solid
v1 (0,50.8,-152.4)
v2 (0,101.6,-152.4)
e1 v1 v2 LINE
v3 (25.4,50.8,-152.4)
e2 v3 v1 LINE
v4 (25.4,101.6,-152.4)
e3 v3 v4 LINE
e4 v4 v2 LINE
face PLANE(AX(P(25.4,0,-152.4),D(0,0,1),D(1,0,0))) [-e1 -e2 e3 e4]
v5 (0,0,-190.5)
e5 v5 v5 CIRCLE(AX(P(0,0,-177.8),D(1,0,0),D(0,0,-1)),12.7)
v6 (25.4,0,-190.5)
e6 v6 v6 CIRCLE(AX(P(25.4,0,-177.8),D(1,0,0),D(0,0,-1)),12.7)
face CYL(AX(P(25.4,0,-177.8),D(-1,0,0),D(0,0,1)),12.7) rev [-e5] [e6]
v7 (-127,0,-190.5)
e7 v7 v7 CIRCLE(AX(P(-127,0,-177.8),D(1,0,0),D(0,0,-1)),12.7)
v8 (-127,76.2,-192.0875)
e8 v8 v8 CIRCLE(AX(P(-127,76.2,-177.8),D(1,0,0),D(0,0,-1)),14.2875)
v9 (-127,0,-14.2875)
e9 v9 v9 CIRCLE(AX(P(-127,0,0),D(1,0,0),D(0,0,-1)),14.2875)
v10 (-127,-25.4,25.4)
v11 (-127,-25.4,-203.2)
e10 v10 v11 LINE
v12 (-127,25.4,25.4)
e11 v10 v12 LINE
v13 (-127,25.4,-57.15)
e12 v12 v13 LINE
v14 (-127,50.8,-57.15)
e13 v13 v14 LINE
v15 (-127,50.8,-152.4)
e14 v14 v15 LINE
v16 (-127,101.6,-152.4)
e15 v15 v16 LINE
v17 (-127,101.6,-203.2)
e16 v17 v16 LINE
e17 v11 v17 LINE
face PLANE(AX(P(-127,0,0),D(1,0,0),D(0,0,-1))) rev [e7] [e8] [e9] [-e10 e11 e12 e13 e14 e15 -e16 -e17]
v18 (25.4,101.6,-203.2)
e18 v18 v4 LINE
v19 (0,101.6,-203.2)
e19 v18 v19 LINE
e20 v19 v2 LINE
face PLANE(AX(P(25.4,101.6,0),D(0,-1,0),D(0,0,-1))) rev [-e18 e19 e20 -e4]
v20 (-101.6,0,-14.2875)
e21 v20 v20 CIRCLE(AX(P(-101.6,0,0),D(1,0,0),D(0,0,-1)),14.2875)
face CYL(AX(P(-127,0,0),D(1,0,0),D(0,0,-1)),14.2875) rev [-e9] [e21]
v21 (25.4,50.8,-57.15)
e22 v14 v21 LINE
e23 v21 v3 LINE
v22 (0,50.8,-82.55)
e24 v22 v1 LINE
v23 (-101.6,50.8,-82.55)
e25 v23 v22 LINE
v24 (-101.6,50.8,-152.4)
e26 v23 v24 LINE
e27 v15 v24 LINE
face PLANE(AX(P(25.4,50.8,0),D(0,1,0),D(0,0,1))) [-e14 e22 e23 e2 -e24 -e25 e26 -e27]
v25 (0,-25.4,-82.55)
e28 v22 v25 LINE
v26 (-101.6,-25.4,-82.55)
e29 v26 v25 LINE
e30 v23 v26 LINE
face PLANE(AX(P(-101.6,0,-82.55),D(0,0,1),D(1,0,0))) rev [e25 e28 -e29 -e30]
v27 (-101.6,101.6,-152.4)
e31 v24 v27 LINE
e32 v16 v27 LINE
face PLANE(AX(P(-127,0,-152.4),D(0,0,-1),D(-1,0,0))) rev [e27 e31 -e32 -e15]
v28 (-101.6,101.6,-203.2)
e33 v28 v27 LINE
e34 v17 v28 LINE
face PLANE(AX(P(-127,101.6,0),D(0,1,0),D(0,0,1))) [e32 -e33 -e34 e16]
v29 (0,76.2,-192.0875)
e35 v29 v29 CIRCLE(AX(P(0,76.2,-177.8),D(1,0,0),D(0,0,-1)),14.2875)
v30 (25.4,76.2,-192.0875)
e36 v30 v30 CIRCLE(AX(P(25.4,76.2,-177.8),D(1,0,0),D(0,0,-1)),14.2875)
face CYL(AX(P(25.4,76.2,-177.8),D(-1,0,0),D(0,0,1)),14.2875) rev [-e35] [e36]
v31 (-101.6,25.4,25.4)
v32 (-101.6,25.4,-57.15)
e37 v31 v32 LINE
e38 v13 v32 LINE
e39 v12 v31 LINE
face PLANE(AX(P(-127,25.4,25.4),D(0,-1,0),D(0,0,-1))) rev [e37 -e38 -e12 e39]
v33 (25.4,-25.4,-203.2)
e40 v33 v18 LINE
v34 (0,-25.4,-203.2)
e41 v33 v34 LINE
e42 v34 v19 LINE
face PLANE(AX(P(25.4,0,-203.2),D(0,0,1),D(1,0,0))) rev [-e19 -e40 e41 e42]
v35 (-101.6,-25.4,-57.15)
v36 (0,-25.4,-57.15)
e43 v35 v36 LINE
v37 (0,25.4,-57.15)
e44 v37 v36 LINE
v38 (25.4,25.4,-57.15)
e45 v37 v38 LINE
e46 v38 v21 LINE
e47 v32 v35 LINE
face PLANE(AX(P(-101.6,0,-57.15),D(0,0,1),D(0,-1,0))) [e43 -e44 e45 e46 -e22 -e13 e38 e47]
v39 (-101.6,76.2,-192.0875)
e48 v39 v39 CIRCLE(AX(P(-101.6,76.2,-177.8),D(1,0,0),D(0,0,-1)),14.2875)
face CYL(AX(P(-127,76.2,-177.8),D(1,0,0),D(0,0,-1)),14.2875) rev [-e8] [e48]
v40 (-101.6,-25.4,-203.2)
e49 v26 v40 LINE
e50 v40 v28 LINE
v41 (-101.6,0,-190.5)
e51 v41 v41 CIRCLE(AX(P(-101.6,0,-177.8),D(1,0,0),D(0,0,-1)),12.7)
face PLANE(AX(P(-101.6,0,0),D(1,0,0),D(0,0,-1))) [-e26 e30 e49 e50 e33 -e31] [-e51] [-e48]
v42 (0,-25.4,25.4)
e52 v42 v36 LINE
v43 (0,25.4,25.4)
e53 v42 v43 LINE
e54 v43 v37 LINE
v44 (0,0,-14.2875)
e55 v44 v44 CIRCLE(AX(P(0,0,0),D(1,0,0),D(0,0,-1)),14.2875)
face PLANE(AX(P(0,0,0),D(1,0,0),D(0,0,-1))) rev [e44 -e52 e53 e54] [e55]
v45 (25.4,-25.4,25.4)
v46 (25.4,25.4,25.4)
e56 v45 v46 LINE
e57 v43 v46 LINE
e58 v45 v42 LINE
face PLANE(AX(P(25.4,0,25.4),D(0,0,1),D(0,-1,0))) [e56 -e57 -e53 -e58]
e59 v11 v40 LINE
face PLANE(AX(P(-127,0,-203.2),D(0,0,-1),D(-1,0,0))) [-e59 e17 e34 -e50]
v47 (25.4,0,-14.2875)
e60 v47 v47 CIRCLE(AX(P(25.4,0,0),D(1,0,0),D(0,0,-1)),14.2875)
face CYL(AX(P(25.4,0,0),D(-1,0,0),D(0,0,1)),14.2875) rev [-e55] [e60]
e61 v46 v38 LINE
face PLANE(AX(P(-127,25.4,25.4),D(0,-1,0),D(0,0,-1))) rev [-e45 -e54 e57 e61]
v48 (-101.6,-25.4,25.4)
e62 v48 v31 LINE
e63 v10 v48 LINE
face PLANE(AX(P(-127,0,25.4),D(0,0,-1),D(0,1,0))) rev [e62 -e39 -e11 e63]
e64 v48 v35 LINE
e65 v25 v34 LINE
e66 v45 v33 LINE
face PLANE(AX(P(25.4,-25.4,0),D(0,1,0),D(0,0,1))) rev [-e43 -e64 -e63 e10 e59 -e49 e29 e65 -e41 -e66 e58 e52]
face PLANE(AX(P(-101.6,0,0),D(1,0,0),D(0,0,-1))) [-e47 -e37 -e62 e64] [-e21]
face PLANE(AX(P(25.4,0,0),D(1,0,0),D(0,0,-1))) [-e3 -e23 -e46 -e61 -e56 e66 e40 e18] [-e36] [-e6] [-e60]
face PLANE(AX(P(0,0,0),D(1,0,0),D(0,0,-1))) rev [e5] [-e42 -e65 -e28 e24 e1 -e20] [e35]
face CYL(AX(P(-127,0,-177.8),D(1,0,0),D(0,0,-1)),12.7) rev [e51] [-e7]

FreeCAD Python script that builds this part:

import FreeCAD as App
import Part
import Sketcher
Q = App.Units.Quantity

doc = App.newDocument("Part")
params = doc.addObject("Spreadsheet::Sheet", "Params")
for row, (alias, value) in enumerate([
    ("sketch1_diameter", "1 in"),
    ("sketch1_width", "3 in"),
    ("sketch1_width2", "5 in"),
    ("sketch1_height", "9 in"),
    ("sketch1_diameter2", "1.125 in"),
    ("pad1_length", "1 in"),
    ("sketch2_width", "3 in"),
    ("sketch2_height", "1 in"),
    ("pad2_length", "4 in"),
    ("sketch3_diameter", "1 in"),
    ("sketch3_width", "5 in"),
    ("sketch3_width2", "2 in"),
    ("sketch3_height", "7 in"),
    ("sketch3_diameter2", "1.125 in"),
    ("pad3_length", "1 in"),
    ("sketch4_width", "1 in"),
    ("sketch4_height", "3.25 in"),
], start=1):
    params.set(f"A{row}", alias)
    params.set(f"B{row}", "=" + value)
    params.setAlias(f"B{row}", alias)

body = doc.addObject("PartDesign::Body", "Body")

sketch1 = doc.addObject("Sketcher::SketchObject", "Sketch")
body.addObject(sketch1)
sketch1.AttachmentSupport = (doc.YZ_Plane, [""])
sketch1.MapMode = "FlatFace"
sketch1.addGeometry([
    Part.LineSegment(App.Vector(51, 25, 0), App.Vector(-25, 25, 0)),
    Part.LineSegment(App.Vector(-25, 25, 0), App.Vector(-25, -203, 0)),
    Part.LineSegment(App.Vector(-25, -203, 0), App.Vector(102, -203, 0)),
    Part.LineSegment(App.Vector(102, -203, 0), App.Vector(102, -152, 0)),
    Part.LineSegment(App.Vector(102, -152, 0), App.Vector(51, -152, 0)),
    Part.LineSegment(App.Vector(51, -152, 0), App.Vector(51, 25, 0)),
    Part.Circle(App.Vector(0, 0, 0), App.Vector(0, 0, 1), 14),
    Part.Circle(App.Vector(76, -178, 0), App.Vector(0, 0, 1), 14),
    Part.Circle(App.Vector(0, -178, 0), App.Vector(0, 0, 1), 13),
], False)
sketch1.addConstraint([
    Sketcher.Constraint("Coincident", 0, 2, 1, 1),
    Sketcher.Constraint("Coincident", 1, 2, 2, 1),
    Sketcher.Constraint("Coincident", 2, 2, 3, 1),
    Sketcher.Constraint("Coincident", 3, 2, 4, 1),
    Sketcher.Constraint("Coincident", 4, 2, 5, 1),
    Sketcher.Constraint("Coincident", 5, 2, 0, 1),
    Sketcher.Constraint("Horizontal", 0),
    Sketcher.Constraint("Vertical", 1),
    Sketcher.Constraint("Horizontal", 2),
    Sketcher.Constraint("Vertical", 3),
    Sketcher.Constraint("Horizontal", 4),
    Sketcher.Constraint("Vertical", 5),
    Sketcher.Constraint("Coincident", 6, 3, -1, 1),
    Sketcher.Constraint("Equal", 6, 7),
    Sketcher.Constraint("PointOnObject", 8, 3, -2),
    Sketcher.Constraint("Horizontal", 7, 3, 8, 3),
    Sketcher.Constraint("Equal", 4, 3),
    Sketcher.Constraint("Diameter", 8, Q("1 in")),
    Sketcher.Constraint("DistanceX", 0, 2, 0, 1, Q("3 in")),
    Sketcher.Constraint("DistanceX", 2, 1, 2, 2, Q("5 in")),
    Sketcher.Constraint("DistanceY", 1, 2, 1, 1, Q("9 in")),
    Sketcher.Constraint("Diameter", 6, Q("1.125 in")),
    Sketcher.Constraint("DistanceX", -1, 1, 7, 3, Q("3 in")),
    Sketcher.Constraint("DistanceY", 7, 3, -1, 1, Q("7 in")),
    Sketcher.Constraint("DistanceX", 0, 2, -1, 1, Q("1 in")),
    Sketcher.Constraint("DistanceY", -1, 1, 0, 2, Q("1 in")),
])
sketch1.setExpression("Constraints[17]", "Params.sketch1_diameter")
sketch1.setExpression("Constraints[18]", "Params.sketch1_width")
sketch1.setExpression("Constraints[19]", "Params.sketch1_width2")
sketch1.setExpression("Constraints[20]", "Params.sketch1_height")
sketch1.setExpression("Constraints[21]", "Params.sketch1_diameter2")
pad1 = doc.addObject("PartDesign::Pad", "Pad")
body.addObject(pad1)
pad1.Profile = sketch1
pad1.setExpression("Length", "Params.pad1_length")

sketch2 = doc.addObject("Sketcher::SketchObject", "Sketch001")
body.addObject(sketch2)
sketch2.AttachmentSupport = (doc.YZ_Plane, [""])
sketch2.MapMode = "FlatFace"
sketch2.addGeometry([
    Part.LineSegment(App.Vector(51, -57, 0), App.Vector(-25, -57, 0)),
    Part.LineSegment(App.Vector(-25, -57, 0), App.Vector(-25, -83, 0)),
    Part.LineSegment(App.Vector(-25, -83, 0), App.Vector(51, -83, 0)),
    Part.LineSegment(App.Vector(51, -83, 0), App.Vector(51, -57, 0)),
], False)
sketch2.addConstraint([
    Sketcher.Constraint("Coincident", 0, 2, 1, 1),
    Sketcher.Constraint("Coincident", 1, 2, 2, 1),
    Sketcher.Constraint("Coincident", 2, 2, 3, 1),
    Sketcher.Constraint("Coincident", 3, 2, 0, 1),
    Sketcher.Constraint("Horizontal", 0),
    Sketcher.Constraint("Vertical", 1),
    Sketcher.Constraint("Horizontal", 2),
    Sketcher.Constraint("Vertical", 3),
    Sketcher.Constraint("DistanceX", 0, 2, 0, 1, Q("3 in")),
    Sketcher.Constraint("DistanceY", 1, 2, 1, 1, Q("1 in")),
    Sketcher.Constraint("DistanceX", 0, 2, -1, 1, Q("1 in")),
    Sketcher.Constraint("DistanceY", 0, 2, -1, 1, Q("2.25 in")),
])
sketch2.setExpression("Constraints[8]", "Params.sketch2_width")
sketch2.setExpression("Constraints[9]", "Params.sketch2_height")
pad2 = doc.addObject("PartDesign::Pad", "Pad001")
body.addObject(pad2)
pad2.Profile = sketch2
pad2.setExpression("Length", "Params.pad2_length")
pad2.Reversed = True

sketch3 = doc.addObject("Sketcher::SketchObject", "Sketch002")
body.addObject(sketch3)
sketch3.AttachmentSupport = (doc.YZ_Plane, [""])
sketch3.MapMode = "FlatFace"
sketch3.AttachmentOffset = App.Placement(App.Vector(0, 0, -5 * 25.4), App.Rotation())
sketch3.addGeometry([
    Part.LineSegment(App.Vector(-25, -203, 0), App.Vector(102, -203, 0)),
    Part.LineSegment(App.Vector(102, -203, 0), App.Vector(102, -152, 0)),
    Part.LineSegment(App.Vector(102, -152, 0), App.Vector(51, -152, 0)),
    Part.LineSegment(App.Vector(51, -152, 0), App.Vector(51, 25, 0)),
    Part.LineSegment(App.Vector(51, 25, 0), App.Vector(-25, 25, 0)),
    Part.LineSegment(App.Vector(-25, 25, 0), App.Vector(-25, -203, 0)),
    Part.Circle(App.Vector(0, 0, 0), App.Vector(0, 0, 1), 14),
    Part.Circle(App.Vector(76, -178, 0), App.Vector(0, 0, 1), 14),
    Part.Circle(App.Vector(0, -178, 0), App.Vector(0, 0, 1), 13),
], False)
sketch3.addConstraint([
    Sketcher.Constraint("Coincident", 0, 2, 1, 1),
    Sketcher.Constraint("Coincident", 1, 2, 2, 1),
    Sketcher.Constraint("Coincident", 2, 2, 3, 1),
    Sketcher.Constraint("Coincident", 3, 2, 4, 1),
    Sketcher.Constraint("Coincident", 4, 2, 5, 1),
    Sketcher.Constraint("Coincident", 5, 2, 0, 1),
    Sketcher.Constraint("Horizontal", 0),
    Sketcher.Constraint("Vertical", 1),
    Sketcher.Constraint("Horizontal", 2),
    Sketcher.Constraint("Vertical", 3),
    Sketcher.Constraint("Horizontal", 4),
    Sketcher.Constraint("Vertical", 5),
    Sketcher.Constraint("Coincident", 6, 3, -1, 1),
    Sketcher.Constraint("Equal", 6, 7),
    Sketcher.Constraint("PointOnObject", 8, 3, -2),
    Sketcher.Constraint("Horizontal", 7, 3, 8, 3),
    Sketcher.Constraint("Equal", 2, 1),
    Sketcher.Constraint("Diameter", 8, Q("1 in")),
    Sketcher.Constraint("DistanceX", 0, 1, 0, 2, Q("5 in")),
    Sketcher.Constraint("DistanceX", 2, 2, 2, 1, Q("2 in")),
    Sketcher.Constraint("DistanceY", 3, 1, 3, 2, Q("7 in")),
    Sketcher.Constraint("Diameter", 6, Q("1.125 in")),
    Sketcher.Constraint("DistanceX", -1, 1, 7, 3, Q("3 in")),
    Sketcher.Constraint("DistanceY", 7, 3, -1, 1, Q("7 in")),
    Sketcher.Constraint("DistanceX", -1, 1, 0, 2, Q("4 in")),
    Sketcher.Constraint("DistanceY", 0, 2, -1, 1, Q("8 in")),
])
sketch3.setExpression("Constraints[17]", "Params.sketch3_diameter")
sketch3.setExpression("Constraints[18]", "Params.sketch3_width")
sketch3.setExpression("Constraints[19]", "Params.sketch3_width2")
sketch3.setExpression("Constraints[20]", "Params.sketch3_height")
sketch3.setExpression("Constraints[21]", "Params.sketch3_diameter2")
pad3 = doc.addObject("PartDesign::Pad", "Pad002")
body.addObject(pad3)
pad3.Profile = sketch3
pad3.setExpression("Length", "Params.pad3_length")

sketch4 = doc.addObject("Sketcher::SketchObject", "Sketch003")
body.addObject(sketch4)
sketch4.AttachmentSupport = (doc.YZ_Plane, [""])
sketch4.MapMode = "FlatFace"
sketch4.AttachmentOffset = App.Placement(App.Vector(0, 0, 1 * 25.4), App.Rotation())
sketch4.addGeometry([
    Part.LineSegment(App.Vector(51, 25, 0), App.Vector(25, 25, 0)),
    Part.LineSegment(App.Vector(25, 25, 0), App.Vector(25, -57, 0)),
    Part.LineSegment(App.Vector(25, -57, 0), App.Vector(51, -57, 0)),
    Part.LineSegment(App.Vector(51, -57, 0), App.Vector(51, 25, 0)),
], False)
sketch4.addConstraint([
    Sketcher.Constraint("Coincident", 0, 2, 1, 1),
    Sketcher.Constraint("Coincident", 1, 2, 2, 1),
    Sketcher.Constraint("Coincident", 2, 2, 3, 1),
    Sketcher.Constraint("Coincident", 3, 2, 0, 1),
    Sketcher.Constraint("Horizontal", 0),
    Sketcher.Constraint("Vertical", 1),
    Sketcher.Constraint("Horizontal", 2),
    Sketcher.Constraint("Vertical", 3),
    Sketcher.Constraint("DistanceX", 0, 2, 0, 1, Q("1 in")),
    Sketcher.Constraint("DistanceX", -1, 1, 0, 2, Q("1 in")),
    Sketcher.Constraint("DistanceY", -1, 1, 0, 2, Q("1 in")),
    Sketcher.Constraint("DistanceY", 1, 2, 1, 1, Q("3.25 in")),
])
sketch4.setExpression("Constraints[8]", "Params.sketch4_width")
sketch4.setExpression("Constraints[11]", "Params.sketch4_height")
pocket1 = doc.addObject("PartDesign::Pocket", "Pocket")
body.addObject(pocket1)
pocket1.Profile = sketch4
pocket1.Type = "ThroughAll"

doc.recompute()
